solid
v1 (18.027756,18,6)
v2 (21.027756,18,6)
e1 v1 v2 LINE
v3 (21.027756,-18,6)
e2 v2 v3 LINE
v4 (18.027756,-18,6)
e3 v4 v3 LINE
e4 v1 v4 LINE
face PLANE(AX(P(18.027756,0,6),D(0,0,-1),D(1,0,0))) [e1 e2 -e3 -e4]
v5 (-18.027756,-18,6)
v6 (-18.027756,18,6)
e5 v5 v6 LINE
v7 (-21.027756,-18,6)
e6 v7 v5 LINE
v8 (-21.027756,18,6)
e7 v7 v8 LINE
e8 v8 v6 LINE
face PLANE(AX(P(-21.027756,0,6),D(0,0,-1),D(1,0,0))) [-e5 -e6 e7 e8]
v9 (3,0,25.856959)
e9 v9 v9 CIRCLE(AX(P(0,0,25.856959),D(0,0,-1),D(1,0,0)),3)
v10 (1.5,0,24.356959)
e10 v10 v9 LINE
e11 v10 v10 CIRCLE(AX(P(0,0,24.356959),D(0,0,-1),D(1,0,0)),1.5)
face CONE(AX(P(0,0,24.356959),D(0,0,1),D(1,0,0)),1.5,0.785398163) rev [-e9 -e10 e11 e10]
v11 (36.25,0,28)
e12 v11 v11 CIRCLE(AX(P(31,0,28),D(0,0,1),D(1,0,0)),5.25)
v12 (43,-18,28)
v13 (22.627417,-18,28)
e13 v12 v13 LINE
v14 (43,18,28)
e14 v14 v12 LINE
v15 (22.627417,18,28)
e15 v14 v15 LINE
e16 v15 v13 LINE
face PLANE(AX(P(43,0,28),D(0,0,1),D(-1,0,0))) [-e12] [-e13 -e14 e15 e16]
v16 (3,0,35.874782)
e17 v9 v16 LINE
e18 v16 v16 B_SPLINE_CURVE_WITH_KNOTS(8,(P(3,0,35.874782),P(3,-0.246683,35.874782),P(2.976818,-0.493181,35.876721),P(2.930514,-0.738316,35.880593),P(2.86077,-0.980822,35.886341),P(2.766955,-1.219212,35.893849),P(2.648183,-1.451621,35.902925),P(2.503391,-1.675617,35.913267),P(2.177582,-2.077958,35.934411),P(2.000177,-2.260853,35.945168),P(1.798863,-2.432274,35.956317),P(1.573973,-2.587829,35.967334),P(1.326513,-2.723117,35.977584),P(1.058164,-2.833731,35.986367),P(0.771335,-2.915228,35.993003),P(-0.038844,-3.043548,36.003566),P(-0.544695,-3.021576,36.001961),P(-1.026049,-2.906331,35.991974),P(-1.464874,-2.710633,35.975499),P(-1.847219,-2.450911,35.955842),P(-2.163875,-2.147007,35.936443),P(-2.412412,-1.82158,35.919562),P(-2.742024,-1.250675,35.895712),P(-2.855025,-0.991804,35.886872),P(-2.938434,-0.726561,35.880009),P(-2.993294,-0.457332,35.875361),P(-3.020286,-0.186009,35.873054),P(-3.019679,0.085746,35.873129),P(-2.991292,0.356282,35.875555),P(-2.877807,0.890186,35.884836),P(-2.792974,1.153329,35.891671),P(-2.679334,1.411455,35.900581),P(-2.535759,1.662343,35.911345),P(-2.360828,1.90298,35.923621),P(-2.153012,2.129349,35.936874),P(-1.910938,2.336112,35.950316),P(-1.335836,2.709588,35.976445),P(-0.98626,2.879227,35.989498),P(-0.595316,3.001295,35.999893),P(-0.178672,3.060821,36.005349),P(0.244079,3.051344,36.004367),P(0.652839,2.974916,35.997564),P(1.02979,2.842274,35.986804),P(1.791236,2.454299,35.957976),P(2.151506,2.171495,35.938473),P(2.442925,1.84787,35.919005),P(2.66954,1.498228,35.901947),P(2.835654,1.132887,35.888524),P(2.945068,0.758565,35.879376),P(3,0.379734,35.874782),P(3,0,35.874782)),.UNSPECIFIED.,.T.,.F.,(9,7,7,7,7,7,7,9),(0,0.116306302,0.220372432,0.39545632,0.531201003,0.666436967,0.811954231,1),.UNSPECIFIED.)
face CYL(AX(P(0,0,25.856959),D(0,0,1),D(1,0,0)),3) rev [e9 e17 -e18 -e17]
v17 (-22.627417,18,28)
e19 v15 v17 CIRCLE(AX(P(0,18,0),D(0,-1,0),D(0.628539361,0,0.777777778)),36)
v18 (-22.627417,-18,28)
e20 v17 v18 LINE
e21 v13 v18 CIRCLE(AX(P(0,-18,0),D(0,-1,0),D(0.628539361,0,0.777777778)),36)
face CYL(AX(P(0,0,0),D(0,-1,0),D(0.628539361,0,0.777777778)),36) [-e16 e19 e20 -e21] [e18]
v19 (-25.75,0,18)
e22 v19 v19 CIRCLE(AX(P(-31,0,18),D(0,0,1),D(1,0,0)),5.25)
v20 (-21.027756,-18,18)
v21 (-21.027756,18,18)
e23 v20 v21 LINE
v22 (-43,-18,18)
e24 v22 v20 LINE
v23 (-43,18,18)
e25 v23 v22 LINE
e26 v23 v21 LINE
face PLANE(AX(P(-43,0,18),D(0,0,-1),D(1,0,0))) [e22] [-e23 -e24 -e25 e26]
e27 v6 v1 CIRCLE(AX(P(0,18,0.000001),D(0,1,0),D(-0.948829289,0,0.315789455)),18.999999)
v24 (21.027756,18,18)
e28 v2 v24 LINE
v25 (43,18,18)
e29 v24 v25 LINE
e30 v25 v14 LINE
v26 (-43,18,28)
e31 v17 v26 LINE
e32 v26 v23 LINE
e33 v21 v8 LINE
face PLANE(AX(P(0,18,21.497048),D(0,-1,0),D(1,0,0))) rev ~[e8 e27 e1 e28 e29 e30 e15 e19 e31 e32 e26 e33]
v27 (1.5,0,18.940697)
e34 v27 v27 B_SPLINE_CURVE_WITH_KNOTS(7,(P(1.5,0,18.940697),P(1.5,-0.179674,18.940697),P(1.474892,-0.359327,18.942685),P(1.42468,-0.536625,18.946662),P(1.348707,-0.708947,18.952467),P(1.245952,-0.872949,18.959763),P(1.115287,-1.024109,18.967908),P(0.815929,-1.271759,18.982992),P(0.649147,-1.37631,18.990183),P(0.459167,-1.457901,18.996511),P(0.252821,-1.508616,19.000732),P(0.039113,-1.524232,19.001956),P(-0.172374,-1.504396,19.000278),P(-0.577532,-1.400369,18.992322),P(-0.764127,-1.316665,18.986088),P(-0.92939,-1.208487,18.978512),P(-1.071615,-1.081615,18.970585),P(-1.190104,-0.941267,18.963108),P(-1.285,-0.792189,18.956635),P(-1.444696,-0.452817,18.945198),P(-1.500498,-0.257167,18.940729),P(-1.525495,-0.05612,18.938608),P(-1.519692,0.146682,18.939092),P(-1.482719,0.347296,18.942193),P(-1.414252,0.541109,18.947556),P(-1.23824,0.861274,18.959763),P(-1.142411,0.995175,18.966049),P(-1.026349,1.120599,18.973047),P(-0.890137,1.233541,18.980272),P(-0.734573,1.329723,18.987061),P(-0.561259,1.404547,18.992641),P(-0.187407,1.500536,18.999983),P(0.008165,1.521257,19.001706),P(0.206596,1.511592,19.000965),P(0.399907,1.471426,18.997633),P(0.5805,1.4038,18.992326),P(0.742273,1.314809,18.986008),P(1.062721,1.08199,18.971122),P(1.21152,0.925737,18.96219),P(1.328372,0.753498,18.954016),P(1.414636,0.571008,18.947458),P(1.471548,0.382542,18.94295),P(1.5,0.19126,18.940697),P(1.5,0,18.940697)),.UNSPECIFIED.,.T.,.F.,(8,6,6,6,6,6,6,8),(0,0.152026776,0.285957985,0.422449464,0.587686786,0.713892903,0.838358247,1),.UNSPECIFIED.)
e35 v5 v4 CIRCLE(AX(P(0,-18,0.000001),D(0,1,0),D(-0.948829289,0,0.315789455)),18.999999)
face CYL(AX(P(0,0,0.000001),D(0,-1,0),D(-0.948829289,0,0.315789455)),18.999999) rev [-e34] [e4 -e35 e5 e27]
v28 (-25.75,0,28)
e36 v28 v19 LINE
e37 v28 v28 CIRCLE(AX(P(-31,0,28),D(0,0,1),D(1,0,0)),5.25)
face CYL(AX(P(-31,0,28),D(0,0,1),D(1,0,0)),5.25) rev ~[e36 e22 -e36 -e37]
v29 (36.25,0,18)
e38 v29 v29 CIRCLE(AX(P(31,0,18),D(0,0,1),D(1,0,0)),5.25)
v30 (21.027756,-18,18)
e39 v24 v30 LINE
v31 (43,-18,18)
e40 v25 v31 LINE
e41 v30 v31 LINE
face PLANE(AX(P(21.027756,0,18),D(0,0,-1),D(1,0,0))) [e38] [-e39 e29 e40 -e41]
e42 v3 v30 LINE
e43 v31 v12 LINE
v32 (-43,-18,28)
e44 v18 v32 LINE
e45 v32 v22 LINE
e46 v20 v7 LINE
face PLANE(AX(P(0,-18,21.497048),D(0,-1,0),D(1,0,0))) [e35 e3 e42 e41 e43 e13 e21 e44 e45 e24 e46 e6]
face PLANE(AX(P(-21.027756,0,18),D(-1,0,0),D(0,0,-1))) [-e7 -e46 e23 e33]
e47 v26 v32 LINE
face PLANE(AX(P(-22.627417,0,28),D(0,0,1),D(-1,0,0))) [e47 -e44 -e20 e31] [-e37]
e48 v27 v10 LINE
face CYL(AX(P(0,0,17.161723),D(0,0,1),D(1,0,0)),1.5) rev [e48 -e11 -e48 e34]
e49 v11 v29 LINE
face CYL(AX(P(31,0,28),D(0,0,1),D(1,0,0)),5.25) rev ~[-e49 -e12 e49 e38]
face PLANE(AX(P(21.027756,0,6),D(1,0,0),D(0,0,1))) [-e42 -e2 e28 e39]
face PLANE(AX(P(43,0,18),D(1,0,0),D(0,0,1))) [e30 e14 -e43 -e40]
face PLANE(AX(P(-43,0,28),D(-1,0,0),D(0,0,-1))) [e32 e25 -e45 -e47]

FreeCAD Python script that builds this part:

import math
import FreeCAD as App
import Part
import Sketcher
from FreeCAD import Vector
Q = App.Units.Quantity

doc = App.newDocument("Part")
body = doc.addObject("PartDesign::Body", "Body")

sketch1 = doc.addObject("Sketcher::SketchObject", "Sketch")
body.addObject(sketch1)
sketch1.AttachmentSupport = (doc.XZ_Plane, [""])
sketch1.MapMode = "FlatFace"
sketch1.addGeometry([
    Part.ArcOfCircle(Part.Circle(Vector(0, 0, 0), Vector(0, 0, 1), 19), math.radians(18), math.radians(162)),
    Part.LineSegment(Vector(18, 6, 0), Vector(21, 6, 0)),
    Part.LineSegment(Vector(21, 6, 0), Vector(21, 18, 0)),
    Part.LineSegment(Vector(21, 18, 0), Vector(43, 18, 0)),
    Part.LineSegment(Vector(43, 18, 0), Vector(43, 28, 0)),
    Part.LineSegment(Vector(43, 28, 0), Vector(22.6, 28, 0)),
    Part.ArcOfCircle(Part.Circle(Vector(0, 0, 0), Vector(0, 0, 1), 36), math.radians(51), math.radians(129)),
    Part.LineSegment(Vector(-22.6, 28, 0), Vector(-43, 28, 0)),
    Part.LineSegment(Vector(-43, 28, 0), Vector(-43, 18, 0)),
    Part.LineSegment(Vector(-43, 18, 0), Vector(-21, 18, 0)),
    Part.LineSegment(Vector(-21, 18, 0), Vector(-21, 6, 0)),
    Part.LineSegment(Vector(-21, 6, 0), Vector(-18, 6, 0)),
], False)
sketch1.addConstraint([
    Sketcher.Constraint("Coincident", 0, 1, 1, 1),
    Sketcher.Constraint("Coincident", 1, 2, 2, 1),
    Sketcher.Constraint("Coincident", 2, 2, 3, 1),
    Sketcher.Constraint("Coincident", 3, 2, 4, 1),
    Sketcher.Constraint("Coincident", 4, 2, 5, 1),
    Sketcher.Constraint("Coincident", 5, 2, 6, 1),
    Sketcher.Constraint("Coincident", 6, 2, 7, 1),
    Sketcher.Constraint("Coincident", 7, 2, 8, 1),
    Sketcher.Constraint("Coincident", 8, 2, 9, 1),
    Sketcher.Constraint("Coincident", 9, 2, 10, 1),
    Sketcher.Constraint("Coincident", 10, 2, 11, 1),
    Sketcher.Constraint("Coincident", 11, 2, 0, 2),
    Sketcher.Constraint("Horizontal", 1),
    Sketcher.Constraint("Vertical", 2),
    Sketcher.Constraint("Horizontal", 3),
    Sketcher.Constraint("Vertical", 4),
    Sketcher.Constraint("Horizontal", 5),
    Sketcher.Constraint("Horizontal", 7),
    Sketcher.Constraint("Vertical", 8),
    Sketcher.Constraint("Horizontal", 9),
    Sketcher.Constraint("Vertical", 10),
    Sketcher.Constraint("Horizontal", 11),
    Sketcher.Constraint("Coincident", 0, 3, -1, 1),
    Sketcher.Constraint("Coincident", 6, 3, -1, 1),
    Sketcher.Constraint("Symmetric", 4, 2, 7, 2, -2),
    Sketcher.Constraint("Symmetric", 2, 2, 9, 2, -2),
    Sketcher.Constraint("Horizontal", 1, 2, 10, 2),
    Sketcher.Constraint("Radius", 0, Q("18.999999 mm")),
    Sketcher.Constraint("Radius", 6, Q("36 mm")),
    Sketcher.Constraint("DistanceX", 1, 1, 1, 2, Q("3 mm")),
    Sketcher.Constraint("DistanceY", 2, 1, 2, 2, Q("12 mm")),
    Sketcher.Constraint("DistanceY", 4, 1, 4, 2, Q("10 mm")),
    Sketcher.Constraint("DistanceY", -1, 1, 0, 1, Q("6 mm")),
    Sketcher.Constraint("DistanceX", -1, 1, 3, 2, Q("43 mm")),
])
pad1 = doc.addObject("PartDesign::Pad", "Pad")
body.addObject(pad1)
pad1.Profile = sketch1
pad1.Length = 36
pad1.Midplane = True

sketch2 = doc.addObject("Sketcher::SketchObject", "Sketch001")
body.addObject(sketch2)
sketch2.AttachmentSupport = (doc.XY_Plane, [""])
sketch2.MapMode = "FlatFace"
sketch2.AttachmentOffset = App.Placement(Vector(0, 0, 28), App.Rotation())
sketch2.addGeometry([
    Part.Circle(Vector(-31, 0, 0), Vector(0, 0, 1), 5),
    Part.Circle(Vector(31, 0, 0), Vector(0, 0, 1), 5),
], False)
sketch2.addConstraint([
    Sketcher.Constraint("Equal", 0, 1),
    Sketcher.Constraint("Symmetric", 0, 3, 1, 3, -1, 1),
    Sketcher.Constraint("PointOnObject", 0, 3, -1),
    Sketcher.Constraint("Diameter", 0, Q("10.5 mm")),
    Sketcher.Constraint("DistanceX", 0, 3, -1, 1, Q("31 mm")),
])
pocket1 = doc.addObject("PartDesign::Pocket", "Pocket")
body.addObject(pocket1)
pocket1.Profile = sketch2
pocket1.Length = 25

sketch3 = doc.addObject("Sketcher::SketchObject", "Sketch002")
body.addObject(sketch3)
sketch3.AttachmentSupport = (doc.XZ_Plane, [""])
sketch3.MapMode = "FlatFace"
sketch3.addGeometry([
    Part.LineSegment(Vector(3, 40.1, 0), Vector(0, 40.1, 0)),
    Part.LineSegment(Vector(0, 40.1, 0), Vector(0, 17.2, 0)),
    Part.LineSegment(Vector(0, 17.2, 0), Vector(1.5, 17.2, 0)),
    Part.LineSegment(Vector(1.5, 17.2, 0), Vector(1.5, 24.4, 0)),
    Part.LineSegment(Vector(1.5, 24.4, 0), Vector(3, 25.9, 0)),
    Part.LineSegment(Vector(3, 25.9, 0), Vector(3, 40.1, 0)),
], False)
sketch3.addConstraint([
    Sketcher.Constraint("Coincident", 0, 2, 1, 1),
    Sketcher.Constraint("Coincident", 1, 2, 2, 1),
    Sketcher.Constraint("Coincident", 2, 2, 3, 1),
    Sketcher.Constraint("Coincident", 3, 2, 4, 1),
    Sketcher.Constraint("Coincident", 4, 2, 5, 1),
    Sketcher.Constraint("Coincident", 5, 2, 0, 1),
    Sketcher.Constraint("Vertical", 1),
    Sketcher.Constraint("Horizontal", 2),
    Sketcher.Constraint("Vertical", 3),
    Sketcher.Constraint("Vertical", 5),
    Sketcher.Constraint("PointOnObject", 0, 2, -2),
    Sketcher.Constraint("Angle", 4, Q("45 deg")),
    Sketcher.Constraint("DistanceX", 2, 1, 2, 2, Q("1.5 mm")),
    Sketcher.Constraint("DistanceX", -1, 1, 4, 2, Q("3 mm")),
    Sketcher.Constraint("DistanceY", 1, 2, 1, 1, Q("22.960709 mm")),
    Sketcher.Constraint("DistanceY", 3, 1, 3, 2, Q("7.195236 mm")),
    Sketcher.Constraint("DistanceY", 5, 1, 5, 2, Q("14.216287 mm")),
    Sketcher.Constraint("DistanceY", -1, 1, 3, 2, Q("24.356959 mm")),
])
groove = doc.addObject("PartDesign::Groove", "Groove")
body.addObject(groove)
groove.Profile = sketch3
groove.ReferenceAxis = (sketch3, ["V_Axis"])
groove.Angle = 360

doc.recompute()
